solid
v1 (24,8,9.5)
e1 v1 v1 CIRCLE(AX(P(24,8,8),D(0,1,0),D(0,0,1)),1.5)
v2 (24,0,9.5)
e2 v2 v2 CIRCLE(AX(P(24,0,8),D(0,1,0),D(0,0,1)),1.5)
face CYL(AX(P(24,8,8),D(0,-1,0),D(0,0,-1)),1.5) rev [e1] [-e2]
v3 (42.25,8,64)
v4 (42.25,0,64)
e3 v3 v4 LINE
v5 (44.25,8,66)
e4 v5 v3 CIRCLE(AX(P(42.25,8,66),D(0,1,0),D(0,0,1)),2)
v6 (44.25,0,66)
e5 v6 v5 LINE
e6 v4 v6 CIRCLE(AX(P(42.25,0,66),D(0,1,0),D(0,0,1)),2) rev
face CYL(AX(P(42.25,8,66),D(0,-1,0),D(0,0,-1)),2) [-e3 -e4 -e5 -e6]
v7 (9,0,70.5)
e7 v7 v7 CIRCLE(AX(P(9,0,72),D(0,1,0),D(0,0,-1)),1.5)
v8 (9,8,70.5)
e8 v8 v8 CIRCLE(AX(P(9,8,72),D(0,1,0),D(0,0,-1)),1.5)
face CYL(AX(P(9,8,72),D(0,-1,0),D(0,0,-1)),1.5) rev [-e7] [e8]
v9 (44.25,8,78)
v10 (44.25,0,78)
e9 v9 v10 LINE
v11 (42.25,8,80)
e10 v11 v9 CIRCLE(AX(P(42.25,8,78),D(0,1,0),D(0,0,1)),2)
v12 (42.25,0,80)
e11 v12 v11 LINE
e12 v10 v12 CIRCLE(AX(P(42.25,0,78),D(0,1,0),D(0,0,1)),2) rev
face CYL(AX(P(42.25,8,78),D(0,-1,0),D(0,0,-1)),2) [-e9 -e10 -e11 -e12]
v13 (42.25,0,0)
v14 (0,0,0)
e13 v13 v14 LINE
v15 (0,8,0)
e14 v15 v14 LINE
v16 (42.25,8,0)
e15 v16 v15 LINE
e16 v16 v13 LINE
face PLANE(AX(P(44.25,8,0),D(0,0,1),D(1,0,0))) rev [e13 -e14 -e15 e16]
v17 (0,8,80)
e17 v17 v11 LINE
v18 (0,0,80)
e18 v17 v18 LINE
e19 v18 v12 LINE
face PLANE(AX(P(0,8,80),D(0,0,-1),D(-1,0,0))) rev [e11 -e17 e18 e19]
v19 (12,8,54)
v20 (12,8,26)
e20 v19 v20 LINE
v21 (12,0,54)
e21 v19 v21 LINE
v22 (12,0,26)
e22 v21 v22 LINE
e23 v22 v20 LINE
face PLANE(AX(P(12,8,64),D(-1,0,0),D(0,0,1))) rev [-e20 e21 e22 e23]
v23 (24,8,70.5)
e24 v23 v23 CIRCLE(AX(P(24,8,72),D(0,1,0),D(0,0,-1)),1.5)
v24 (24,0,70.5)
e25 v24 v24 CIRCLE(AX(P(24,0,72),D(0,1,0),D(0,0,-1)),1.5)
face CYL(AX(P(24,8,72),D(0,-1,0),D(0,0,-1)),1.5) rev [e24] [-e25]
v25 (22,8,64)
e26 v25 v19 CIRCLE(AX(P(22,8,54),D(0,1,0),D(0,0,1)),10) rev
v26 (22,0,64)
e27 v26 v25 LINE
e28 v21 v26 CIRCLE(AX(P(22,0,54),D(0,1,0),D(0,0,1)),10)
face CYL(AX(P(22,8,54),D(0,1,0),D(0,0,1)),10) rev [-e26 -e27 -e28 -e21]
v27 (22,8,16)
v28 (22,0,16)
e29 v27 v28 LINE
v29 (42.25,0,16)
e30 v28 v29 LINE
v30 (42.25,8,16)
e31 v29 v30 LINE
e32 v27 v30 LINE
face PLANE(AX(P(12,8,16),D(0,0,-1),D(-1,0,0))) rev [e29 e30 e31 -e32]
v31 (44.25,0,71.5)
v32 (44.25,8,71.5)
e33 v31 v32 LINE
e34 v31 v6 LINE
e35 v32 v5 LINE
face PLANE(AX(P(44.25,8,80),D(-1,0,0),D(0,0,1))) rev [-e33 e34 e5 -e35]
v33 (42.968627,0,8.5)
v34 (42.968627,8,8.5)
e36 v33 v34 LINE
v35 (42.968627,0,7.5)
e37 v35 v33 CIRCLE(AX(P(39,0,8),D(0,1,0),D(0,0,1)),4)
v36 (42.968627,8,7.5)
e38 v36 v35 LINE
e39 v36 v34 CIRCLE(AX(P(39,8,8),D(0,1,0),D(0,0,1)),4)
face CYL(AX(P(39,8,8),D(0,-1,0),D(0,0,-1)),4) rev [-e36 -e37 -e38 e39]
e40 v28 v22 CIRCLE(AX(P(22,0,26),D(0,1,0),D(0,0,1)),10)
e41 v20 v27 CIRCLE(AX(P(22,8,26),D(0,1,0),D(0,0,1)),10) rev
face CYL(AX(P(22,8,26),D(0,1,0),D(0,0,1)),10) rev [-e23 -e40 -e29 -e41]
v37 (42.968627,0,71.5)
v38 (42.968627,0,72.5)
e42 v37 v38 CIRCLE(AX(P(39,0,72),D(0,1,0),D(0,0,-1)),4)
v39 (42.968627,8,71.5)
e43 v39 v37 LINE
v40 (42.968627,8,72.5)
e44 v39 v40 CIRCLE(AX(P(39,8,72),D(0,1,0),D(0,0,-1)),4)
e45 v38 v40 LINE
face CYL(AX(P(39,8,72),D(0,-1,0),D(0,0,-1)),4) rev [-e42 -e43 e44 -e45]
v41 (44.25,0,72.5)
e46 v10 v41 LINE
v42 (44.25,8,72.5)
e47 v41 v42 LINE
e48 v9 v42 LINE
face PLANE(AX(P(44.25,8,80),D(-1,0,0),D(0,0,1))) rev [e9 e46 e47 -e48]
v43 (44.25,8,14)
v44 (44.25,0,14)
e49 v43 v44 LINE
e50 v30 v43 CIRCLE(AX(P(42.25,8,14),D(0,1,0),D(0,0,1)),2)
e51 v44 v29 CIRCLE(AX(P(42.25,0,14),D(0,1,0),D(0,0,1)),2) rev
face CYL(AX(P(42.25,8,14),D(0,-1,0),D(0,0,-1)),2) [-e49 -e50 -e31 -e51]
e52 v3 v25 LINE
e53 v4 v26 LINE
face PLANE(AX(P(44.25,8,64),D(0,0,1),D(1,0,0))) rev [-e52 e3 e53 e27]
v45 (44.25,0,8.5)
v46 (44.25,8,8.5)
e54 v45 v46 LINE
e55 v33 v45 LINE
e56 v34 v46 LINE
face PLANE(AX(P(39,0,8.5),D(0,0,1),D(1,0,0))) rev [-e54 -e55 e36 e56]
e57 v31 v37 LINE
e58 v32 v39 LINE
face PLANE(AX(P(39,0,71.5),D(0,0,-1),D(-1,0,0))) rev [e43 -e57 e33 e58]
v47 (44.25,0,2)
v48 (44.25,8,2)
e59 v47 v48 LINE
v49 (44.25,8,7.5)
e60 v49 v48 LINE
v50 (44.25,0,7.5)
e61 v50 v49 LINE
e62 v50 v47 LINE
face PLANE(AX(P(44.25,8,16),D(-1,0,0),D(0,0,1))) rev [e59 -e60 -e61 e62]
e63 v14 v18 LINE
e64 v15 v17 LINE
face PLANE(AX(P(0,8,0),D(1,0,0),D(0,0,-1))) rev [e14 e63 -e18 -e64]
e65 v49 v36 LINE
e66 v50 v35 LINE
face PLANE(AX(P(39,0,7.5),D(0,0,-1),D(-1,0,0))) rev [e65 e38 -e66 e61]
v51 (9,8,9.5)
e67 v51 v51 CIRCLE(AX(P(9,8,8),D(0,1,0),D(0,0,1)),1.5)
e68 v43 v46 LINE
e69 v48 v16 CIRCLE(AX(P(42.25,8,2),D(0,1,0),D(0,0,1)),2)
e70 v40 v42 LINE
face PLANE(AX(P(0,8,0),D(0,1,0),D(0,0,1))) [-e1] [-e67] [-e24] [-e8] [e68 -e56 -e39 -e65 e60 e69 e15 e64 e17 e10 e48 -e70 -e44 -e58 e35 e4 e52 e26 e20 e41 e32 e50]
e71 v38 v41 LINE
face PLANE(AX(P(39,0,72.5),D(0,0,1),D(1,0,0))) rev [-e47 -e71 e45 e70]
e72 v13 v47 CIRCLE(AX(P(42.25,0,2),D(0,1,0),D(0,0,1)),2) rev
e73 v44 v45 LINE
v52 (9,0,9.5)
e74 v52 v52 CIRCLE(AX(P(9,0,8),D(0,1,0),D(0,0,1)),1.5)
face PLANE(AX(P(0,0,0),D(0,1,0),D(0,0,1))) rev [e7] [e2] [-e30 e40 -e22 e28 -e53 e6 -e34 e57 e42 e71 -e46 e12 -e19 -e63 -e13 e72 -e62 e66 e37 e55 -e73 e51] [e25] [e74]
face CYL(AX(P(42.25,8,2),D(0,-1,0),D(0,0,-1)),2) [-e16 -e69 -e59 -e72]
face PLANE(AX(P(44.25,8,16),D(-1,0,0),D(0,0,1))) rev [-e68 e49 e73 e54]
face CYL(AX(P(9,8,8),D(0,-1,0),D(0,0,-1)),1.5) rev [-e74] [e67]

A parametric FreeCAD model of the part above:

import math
import FreeCAD as App
import Part
import Sketcher
Q = App.Units.Quantity


def edges_at(feature, points):
    """Names of the edges that pass closest to the given points."""
    edges = feature.Shape.Edges
    near = lambda p: min(range(len(edges)), key=lambda i: edges[i].distToShape(Part.Vertex(*p))[0])
    return sorted({f"Edge{near(p) + 1}" for p in points})

doc = App.newDocument("Part")
body = doc.addObject("PartDesign::Body", "Body")

sketch1 = body.newObject("Sketcher::SketchObject", "Sketch")
sketch1.AttachmentSupport = (doc.getObject("XZ_Plane"), [""])
sketch1.MapMode = "FlatFace"
sketch1.addGeometry(Part.LineSegment(App.Vector(0, 0, 0), App.Vector(0, 80, 0)), False)
sketch1.addGeometry(Part.LineSegment(App.Vector(0, 80, 0), App.Vector(44.2, 80, 0)), False)
sketch1.addGeometry(Part.LineSegment(App.Vector(44.2, 80, 0), App.Vector(44.2, 64, 0)), False)
sketch1.addGeometry(Part.LineSegment(App.Vector(44.2, 64, 0), App.Vector(12, 64, 0)), False)
sketch1.addGeometry(Part.LineSegment(App.Vector(12, 64, 0), App.Vector(12, 16, 0)), False)
sketch1.addGeometry(Part.LineSegment(App.Vector(12, 16, 0), App.Vector(44.2, 16, 0)), False)
sketch1.addGeometry(Part.LineSegment(App.Vector(44.2, 16, 0), App.Vector(44.2, 0, 0)), False)
sketch1.addGeometry(Part.LineSegment(App.Vector(44.2, 0, 0), App.Vector(0, 0, 0)), False)
sketch1.addGeometry(Part.Circle(App.Vector(9, 72, 0), App.Vector(0, 0, 1), 1.5), False)
sketch1.addGeometry(Part.Circle(App.Vector(24, 72, 0), App.Vector(0, 0, 1), 1.5), False)
sketch1.addGeometry(Part.Circle(App.Vector(39, 72, 0), App.Vector(0, 0, 1), 4), False)
sketch1.addGeometry(Part.Circle(App.Vector(9, 8, 0), App.Vector(0, 0, 1), 1.5), False)
sketch1.addGeometry(Part.Circle(App.Vector(24, 8, 0), App.Vector(0, 0, 1), 1.5), False)
sketch1.addGeometry(Part.Circle(App.Vector(39, 8, 0), App.Vector(0, 0, 1), 4), False)
sketch1.addConstraint(Sketcher.Constraint("Coincident", 0, 2, 1, 1))
sketch1.addConstraint(Sketcher.Constraint("Coincident", 1, 2, 2, 1))
sketch1.addConstraint(Sketcher.Constraint("Coincident", 2, 2, 3, 1))
sketch1.addConstraint(Sketcher.Constraint("Coincident", 3, 2, 4, 1))
sketch1.addConstraint(Sketcher.Constraint("Coincident", 4, 2, 5, 1))
sketch1.addConstraint(Sketcher.Constraint("Coincident", 5, 2, 6, 1))
sketch1.addConstraint(Sketcher.Constraint("Coincident", 6, 2, 7, 1))
sketch1.addConstraint(Sketcher.Constraint("Coincident", 7, 2, 0, 1))
sketch1.addConstraint(Sketcher.Constraint("Vertical", 0))
sketch1.addConstraint(Sketcher.Constraint("Horizontal", 1))
sketch1.addConstraint(Sketcher.Constraint("Vertical", 2))
sketch1.addConstraint(Sketcher.Constraint("Horizontal", 3))
sketch1.addConstraint(Sketcher.Constraint("Vertical", 4))
sketch1.addConstraint(Sketcher.Constraint("Horizontal", 5))
sketch1.addConstraint(Sketcher.Constraint("Vertical", 6))
sketch1.addConstraint(Sketcher.Constraint("Horizontal", 7))
sketch1.addConstraint(Sketcher.Constraint("Coincident", 7, 2, -1, 1))
sketch1.addConstraint(Sketcher.Constraint("Equal", 8, 9))
sketch1.addConstraint(Sketcher.Constraint("Equal", 9, 11))
sketch1.addConstraint(Sketcher.Constraint("Equal", 11, 12))
sketch1.addConstraint(Sketcher.Constraint("Equal", 10, 13))
sketch1.addConstraint(Sketcher.Constraint("Horizontal", 8, 3, 9, 3))
sketch1.addConstraint(Sketcher.Constraint("Horizontal", 9, 3, 10, 3))
sketch1.addConstraint(Sketcher.Constraint("Horizontal", 11, 3, 12, 3))
sketch1.addConstraint(Sketcher.Constraint("Horizontal", 12, 3, 13, 3))
sketch1.addConstraint(Sketcher.Constraint("Vertical", 8, 3, 11, 3))
sketch1.addConstraint(Sketcher.Constraint("Vertical", 9, 3, 12, 3))
sketch1.addConstraint(Sketcher.Constraint("Vertical", 10, 3, 13, 3))
sketch1.addConstraint(Sketcher.Constraint("Vertical", 2, 2, 5, 2))
sketch1.addConstraint(Sketcher.Constraint("Equal", 2, 6))
sketch1.addConstraint(Sketcher.Constraint("Diameter", 8, Q("3 mm")))
sketch1.addConstraint(Sketcher.Constraint("Diameter", 10, Q("8 mm")))
sketch1.addConstraint(Sketcher.Constraint("DistanceY", 0, 1, 0, 2, Q("80 mm")))
sketch1.addConstraint(Sketcher.Constraint("DistanceY", 2, 2, 2, 1, Q("16 mm")))
sketch1.addConstraint(Sketcher.Constraint("DistanceX", -1, 1, 8, 3, Q("9 mm")))
sketch1.addConstraint(Sketcher.Constraint("DistanceY", -1, 1, 8, 3, Q("72 mm")))
sketch1.addConstraint(Sketcher.Constraint("DistanceX", -1, 1, 9, 3, Q("24 mm")))
sketch1.addConstraint(Sketcher.Constraint("DistanceX", -1, 1, 10, 3, Q("39 mm")))
sketch1.addConstraint(Sketcher.Constraint("DistanceY", -1, 1, 11, 3, Q("8 mm")))
sketch1.addConstraint(Sketcher.Constraint("DistanceX", -1, 1, 3, 2, Q("12 mm")))
sketch1.addConstraint(Sketcher.Constraint("DistanceX", 1, 1, 1, 2, Q("44.25 mm")))
pad1 = body.newObject("PartDesign::Pad", "Pad")
pad1.Profile = sketch1
pad1.Length = 8
pad1.Reversed = True

sketch2 = body.newObject("Sketcher::SketchObject", "Sketch001")
sketch2.AttachmentSupport = (doc.getObject("XZ_Plane"), [""])
sketch2.MapMode = "FlatFace"
sketch2.AttachmentOffset = App.Placement(App.Vector(0, 0, -8), App.Rotation())
sketch2.addGeometry(Part.LineSegment(App.Vector(44.2, 7.5, 0), App.Vector(39, 7.5, 0)), False)
sketch2.addGeometry(Part.ArcOfCircle(Part.Circle(App.Vector(39, 8, 0), App.Vector(0, 0, 1), 0.5), math.radians(90), math.radians(270)), False)
sketch2.addGeometry(Part.LineSegment(App.Vector(39, 8.5, 0), App.Vector(44.2, 8.5, 0)), False)
sketch2.addGeometry(Part.ArcOfCircle(Part.Circle(App.Vector(44.2, 8, 0), App.Vector(0, 0, 1), 0.5), math.radians(-90), math.radians(90)), False)
sketch2.addGeometry(Part.LineSegment(App.Vector(44.2, 71.5, 0), App.Vector(39, 71.5, 0)), False)
sketch2.addGeometry(Part.ArcOfCircle(Part.Circle(App.Vector(39, 72, 0), App.Vector(0, 0, 1), 0.5), math.radians(90), math.radians(270)), False)
sketch2.addGeometry(Part.LineSegment(App.Vector(39, 72.5, 0), App.Vector(44.2, 72.5, 0)), False)
sketch2.addGeometry(Part.ArcOfCircle(Part.Circle(App.Vector(44.2, 72, 0), App.Vector(0, 0, 1), 0.5), math.radians(-90), math.radians(90)), False)
sketch2.addConstraint(Sketcher.Constraint("Tangent", 0, 2, 1, 2))
sketch2.addConstraint(Sketcher.Constraint("Tangent", 1, 1, 2, 1))
sketch2.addConstraint(Sketcher.Constraint("Tangent", 2, 2, 3, 2))
sketch2.addConstraint(Sketcher.Constraint("Tangent", 3, 1, 0, 1))
sketch2.addConstraint(Sketcher.Constraint("Tangent", 4, 2, 5, 2))
sketch2.addConstraint(Sketcher.Constraint("Tangent", 5, 1, 6, 1))
sketch2.addConstraint(Sketcher.Constraint("Tangent", 6, 2, 7, 2))
sketch2.addConstraint(Sketcher.Constraint("Tangent", 7, 1, 4, 1))
sketch2.addConstraint(Sketcher.Constraint("Horizontal", 0))
sketch2.addConstraint(Sketcher.Constraint("Horizontal", 2))
sketch2.addConstraint(Sketcher.Constraint("Horizontal", 4))
sketch2.addConstraint(Sketcher.Constraint("Horizontal", 6))
sketch2.addConstraint(Sketcher.Constraint("Equal", 3, 5))
sketch2.addConstraint(Sketcher.Constraint("Vertical", 1, 3, 5, 3))
sketch2.addConstraint(Sketcher.Constraint("Vertical", 3, 3, 7, 3))
sketch2.addConstraint(Sketcher.Constraint("Radius", 1, Q("0.5 mm")))
sketch2.addConstraint(Sketcher.Constraint("DistanceX", -1, 1, 1, 3, Q("39 mm")))
sketch2.addConstraint(Sketcher.Constraint("DistanceY", -1, 1, 1, 3, Q("8 mm")))
sketch2.addConstraint(Sketcher.Constraint("DistanceY", -1, 1, 5, 3, Q("72 mm")))
sketch2.addConstraint(Sketcher.Constraint("DistanceX", 0, 2, 0, 1, Q("5.25 mm")))
pocket1 = body.newObject("PartDesign::Pocket", "Pocket")
pocket1.Profile = sketch2
pocket1.Type = "ThroughAll"
pocket1.Reversed = True
doc.recompute()

fillet = body.newObject("PartDesign::Fillet", "Fillet")
fillet.Base = (pocket1, edges_at(pocket1, [
    (44.25, 4, 0),
    (44.25, 4, 16),
    (44.25, 4, 64),
    (44.25, 4, 80),
]))
fillet.Radius = 2
doc.recompute()

fillet2 = body.newObject("PartDesign::Fillet", "Fillet001")
fillet2.Base = (fillet, edges_at(fillet, [(12, 4, 16), (12, 4, 64)]))
fillet2.Radius = 10

doc.recompute()
